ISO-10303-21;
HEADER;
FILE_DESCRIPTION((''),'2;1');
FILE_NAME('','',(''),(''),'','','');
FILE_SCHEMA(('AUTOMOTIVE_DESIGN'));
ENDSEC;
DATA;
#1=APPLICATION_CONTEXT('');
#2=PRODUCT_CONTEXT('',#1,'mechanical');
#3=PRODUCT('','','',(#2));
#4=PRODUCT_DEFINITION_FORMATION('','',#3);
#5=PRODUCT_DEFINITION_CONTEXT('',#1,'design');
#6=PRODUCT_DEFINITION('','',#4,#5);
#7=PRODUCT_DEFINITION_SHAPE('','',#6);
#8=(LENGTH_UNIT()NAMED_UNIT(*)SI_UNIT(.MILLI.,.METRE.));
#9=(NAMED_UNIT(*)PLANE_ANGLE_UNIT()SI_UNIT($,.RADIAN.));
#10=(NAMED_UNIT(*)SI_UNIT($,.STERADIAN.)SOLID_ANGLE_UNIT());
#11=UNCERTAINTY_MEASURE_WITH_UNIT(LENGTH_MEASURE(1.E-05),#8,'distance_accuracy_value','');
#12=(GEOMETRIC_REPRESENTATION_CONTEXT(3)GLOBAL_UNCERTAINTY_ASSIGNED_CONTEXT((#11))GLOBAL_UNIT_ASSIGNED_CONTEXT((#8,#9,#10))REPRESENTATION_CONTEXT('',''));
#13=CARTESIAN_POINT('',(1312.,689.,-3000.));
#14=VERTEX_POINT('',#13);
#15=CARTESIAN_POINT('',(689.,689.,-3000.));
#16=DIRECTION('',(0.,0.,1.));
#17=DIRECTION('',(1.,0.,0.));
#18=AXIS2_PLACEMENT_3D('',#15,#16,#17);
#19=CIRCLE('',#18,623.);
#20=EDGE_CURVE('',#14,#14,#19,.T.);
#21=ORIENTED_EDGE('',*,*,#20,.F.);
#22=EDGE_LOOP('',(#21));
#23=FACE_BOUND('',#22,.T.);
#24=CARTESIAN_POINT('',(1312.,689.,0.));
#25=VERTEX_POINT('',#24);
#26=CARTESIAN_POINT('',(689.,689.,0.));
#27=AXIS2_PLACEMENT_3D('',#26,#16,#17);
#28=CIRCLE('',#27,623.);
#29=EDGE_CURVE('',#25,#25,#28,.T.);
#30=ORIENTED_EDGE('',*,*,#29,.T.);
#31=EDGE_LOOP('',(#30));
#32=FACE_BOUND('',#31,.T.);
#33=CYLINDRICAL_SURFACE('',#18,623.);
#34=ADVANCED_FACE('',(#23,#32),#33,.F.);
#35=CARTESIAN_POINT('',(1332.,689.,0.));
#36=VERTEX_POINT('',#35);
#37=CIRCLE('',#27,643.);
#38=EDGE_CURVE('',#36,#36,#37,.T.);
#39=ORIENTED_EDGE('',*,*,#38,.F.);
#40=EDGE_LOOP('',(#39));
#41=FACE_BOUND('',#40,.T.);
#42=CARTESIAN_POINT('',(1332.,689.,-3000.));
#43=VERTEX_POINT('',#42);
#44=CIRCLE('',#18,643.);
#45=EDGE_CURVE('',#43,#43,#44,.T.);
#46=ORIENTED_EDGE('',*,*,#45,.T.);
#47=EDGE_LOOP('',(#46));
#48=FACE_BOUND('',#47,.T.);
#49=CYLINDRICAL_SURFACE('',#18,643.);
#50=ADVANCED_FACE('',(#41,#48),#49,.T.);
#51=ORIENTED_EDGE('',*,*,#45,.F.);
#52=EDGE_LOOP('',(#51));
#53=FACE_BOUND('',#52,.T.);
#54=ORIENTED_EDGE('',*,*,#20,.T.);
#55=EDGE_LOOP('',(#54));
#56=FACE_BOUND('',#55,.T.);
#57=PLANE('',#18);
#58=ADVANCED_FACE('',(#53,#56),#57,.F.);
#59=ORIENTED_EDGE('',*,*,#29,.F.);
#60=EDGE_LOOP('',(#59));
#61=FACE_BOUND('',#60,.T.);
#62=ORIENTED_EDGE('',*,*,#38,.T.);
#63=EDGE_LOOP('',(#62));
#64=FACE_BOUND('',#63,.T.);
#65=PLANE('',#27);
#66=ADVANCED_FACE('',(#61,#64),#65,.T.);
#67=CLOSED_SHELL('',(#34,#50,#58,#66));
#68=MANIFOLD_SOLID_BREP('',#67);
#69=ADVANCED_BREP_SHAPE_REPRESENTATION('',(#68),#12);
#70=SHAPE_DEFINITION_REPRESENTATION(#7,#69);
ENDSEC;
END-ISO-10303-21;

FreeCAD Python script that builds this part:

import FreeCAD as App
import Part
import Sketcher
Q = App.Units.Quantity

doc = App.newDocument("Part")
body = doc.addObject("PartDesign::Body", "Body")

# Sketch on XY plane
sketch1 = body.newObject("Sketcher::SketchObject", "Sketch")
sketch1.AttachmentSupport = (doc.getObject("XY_Plane"), [""])
sketch1.MapMode = "FlatFace"
sketch1.addGeometry([
    Part.Circle(App.Vector(689, 689, 0), App.Vector(0, 0, 1), 643),
    Part.Circle(App.Vector(689, 689, 0), App.Vector(0, 0, 1), 623),
], False)
sketch1.addConstraint([
    Sketcher.Constraint("Coincident", 1, 3, 0, 3),
    Sketcher.Constraint("Diameter", 0, Q("1286 mm")),
    Sketcher.Constraint("Diameter", 1, Q("1246 mm")),
    Sketcher.Constraint("DistanceX", -1, 1, 0, 3, Q("689 mm")),
    Sketcher.Constraint("DistanceY", -1, 1, 0, 3, Q("689 mm")),
])
pad1 = body.newObject("PartDesign::Pad", "Pad")
pad1.Profile = sketch1
pad1.Length = 3000
pad1.Reversed = True

doc.recompute()
